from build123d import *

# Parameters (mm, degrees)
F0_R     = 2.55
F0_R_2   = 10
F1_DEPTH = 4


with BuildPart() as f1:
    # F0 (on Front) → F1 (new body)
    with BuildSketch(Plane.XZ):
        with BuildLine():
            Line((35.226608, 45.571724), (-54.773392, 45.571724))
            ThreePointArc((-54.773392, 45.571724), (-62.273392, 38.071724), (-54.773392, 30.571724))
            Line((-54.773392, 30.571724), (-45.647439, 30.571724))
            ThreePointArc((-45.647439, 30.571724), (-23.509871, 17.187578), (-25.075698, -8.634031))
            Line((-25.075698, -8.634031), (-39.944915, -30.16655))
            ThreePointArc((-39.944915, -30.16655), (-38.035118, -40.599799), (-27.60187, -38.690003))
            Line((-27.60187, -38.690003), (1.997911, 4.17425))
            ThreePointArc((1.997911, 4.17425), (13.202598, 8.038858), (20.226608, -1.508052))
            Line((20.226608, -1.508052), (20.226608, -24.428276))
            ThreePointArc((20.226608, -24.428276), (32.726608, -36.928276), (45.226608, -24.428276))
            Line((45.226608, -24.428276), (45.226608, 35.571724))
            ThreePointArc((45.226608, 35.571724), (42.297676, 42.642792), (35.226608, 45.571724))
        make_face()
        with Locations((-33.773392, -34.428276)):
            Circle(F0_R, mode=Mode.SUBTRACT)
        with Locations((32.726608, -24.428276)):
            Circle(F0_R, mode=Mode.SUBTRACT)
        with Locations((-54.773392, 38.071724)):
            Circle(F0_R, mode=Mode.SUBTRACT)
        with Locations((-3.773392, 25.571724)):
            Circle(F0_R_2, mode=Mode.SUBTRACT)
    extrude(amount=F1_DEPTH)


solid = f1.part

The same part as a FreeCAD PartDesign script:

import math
import FreeCAD as App
import Part
import Sketcher
Q = App.Units.Quantity

doc = App.newDocument("Part")
body = doc.addObject("PartDesign::Body", "Body")

sketch1 = doc.addObject("Sketcher::SketchObject", "Sketch")
body.addObject(sketch1)
sketch1.AttachmentSupport = (doc.XZ_Plane, [""])
sketch1.MapMode = "FlatFace"
sketch1.addGeometry(Part.LineSegment(App.Vector(35.226608, 45.571724, 0), App.Vector(-54.773392, 45.571724, 0)), False)
sketch1.addGeometry(Part.ArcOfCircle(Part.Circle(App.Vector(-54.773392, 38.071724, 0), App.Vector(0, 0, 1), 7.5), math.radians(90), math.radians(270)), False)
sketch1.addGeometry(Part.LineSegment(App.Vector(-54.773392, 30.571724, 0), App.Vector(-45.647439, 30.571724, 0)), False)
sketch1.addGeometry(Part.ArcOfCircle(Part.Circle(App.Vector(-45.64744, 5.571724, 0), App.Vector(0, 0, 1), 25), math.radians(-34.626903), math.radians(89.999998)), False)
sketch1.addGeometry(Part.LineSegment(App.Vector(-25.075698, -8.634031, 0), App.Vector(-39.944915, -30.16655, 0)), False)
sketch1.addGeometry(Part.ArcOfCircle(Part.Circle(App.Vector(-33.773392, -34.428276, 0), App.Vector(0, 0, 1), 7.5), math.radians(145.373101), math.radians(325.373092)), False)
sketch1.addGeometry(Part.LineSegment(App.Vector(-27.60187, -38.690003, 0), App.Vector(1.997911, 4.17425, 0)), False)
sketch1.addGeometry(Part.ArcOfCircle(Part.Circle(App.Vector(10.226608, -1.508052, 0), App.Vector(0, 0, 1), 10), math.radians(-0.000001), math.radians(145.373098)), False)
sketch1.addGeometry(Part.LineSegment(App.Vector(20.226608, -1.508052, 0), App.Vector(20.226608, -24.428276, 0)), False)
sketch1.addGeometry(Part.ArcOfCircle(Part.Circle(App.Vector(32.726608, -24.428276, 0), App.Vector(0, 0, 1), 12.5), math.radians(180), math.radians(360)), False)
sketch1.addGeometry(Part.LineSegment(App.Vector(45.226608, -24.428276, 0), App.Vector(45.226608, 35.571724, 0)), False)
sketch1.addGeometry(Part.ArcOfCircle(Part.Circle(App.Vector(35.226609, 35.571725, 0), App.Vector(0, 0, 1), 9.999999), math.radians(-0.000004), math.radians(90.000004)), False)
sketch1.addGeometry(Part.Circle(App.Vector(-33.773392, -34.428276, 0), App.Vector(0, 0, 1), 2.55), False)
sketch1.addGeometry(Part.Circle(App.Vector(32.726608, -24.428276, 0), App.Vector(0, 0, 1), 2.55), False)
sketch1.addGeometry(Part.Circle(App.Vector(-54.773392, 38.071724, 0), App.Vector(0, 0, 1), 2.55), False)
sketch1.addGeometry(Part.Circle(App.Vector(-3.773392, 25.571724, 0), App.Vector(0, 0, 1), 10), False)
sketch1.addConstraint(Sketcher.Constraint("Tangent", 0, 2, 1, 1))
sketch1.addConstraint(Sketcher.Constraint("Tangent", 1, 2, 2, 1))
sketch1.addConstraint(Sketcher.Constraint("Tangent", 2, 2, 3, 2))
sketch1.addConstraint(Sketcher.Constraint("Tangent", 3, 1, 4, 1))
sketch1.addConstraint(Sketcher.Constraint("Tangent", 4, 2, 5, 1))
sketch1.addConstraint(Sketcher.Constraint("Tangent", 5, 2, 6, 1))
sketch1.addConstraint(Sketcher.Constraint("Tangent", 6, 2, 7, 2))
sketch1.addConstraint(Sketcher.Constraint("Tangent", 7, 1, 8, 1))
sketch1.addConstraint(Sketcher.Constraint("Tangent", 8, 2, 9, 1))
sketch1.addConstraint(Sketcher.Constraint("Tangent", 9, 2, 10, 1))
sketch1.addConstraint(Sketcher.Constraint("Tangent", 10, 2, 11, 1))
sketch1.addConstraint(Sketcher.Constraint("Tangent", 11, 2, 0, 1))
sketch1.addConstraint(Sketcher.Constraint("Horizontal", 0))
sketch1.addConstraint(Sketcher.Constraint("Horizontal", 2))
sketch1.addConstraint(Sketcher.Constraint("Vertical", 8))
sketch1.addConstraint(Sketcher.Constraint("Vertical", 10))
sketch1.addConstraint(Sketcher.Constraint("Coincident", 12, 3, 5, 3))
sketch1.addConstraint(Sketcher.Constraint("Coincident", 13, 3, 9, 3))
sketch1.addConstraint(Sketcher.Constraint("Coincident", 14, 3, 1, 3))
sketch1.addConstraint(Sketcher.Constraint("Equal", 1, 5))
sketch1.addConstraint(Sketcher.Constraint("Equal", 7, 11))
sketch1.addConstraint(Sketcher.Constraint("Equal", 12, 13))
sketch1.addConstraint(Sketcher.Constraint("Equal", 13, 14))
sketch1.addConstraint(Sketcher.Constraint("Equal", 11, 15))
sketch1.addConstraint(Sketcher.Constraint("Parallel", 4, 6))
sketch1.addConstraint(Sketcher.Constraint("Diameter", 15, Q("20 mm")))
sketch1.addConstraint(Sketcher.Constraint("Radius", 3, Q("25 mm")))
sketch1.addConstraint(Sketcher.Constraint("Diameter", 12, Q("5.1 mm")))
sketch1.addConstraint(Sketcher.Constraint("Radius", 1, Q("7.5 mm")))
sketch1.addConstraint(Sketcher.Constraint("Radius", 9, Q("12.5 mm")))
sketch1.addConstraint(Sketcher.Constraint("DistanceX", 0, 2, 0, 1, Q("90 mm")))
sketch1.addConstraint(Sketcher.Constraint("DistanceY", 10, 1, 10, 2, Q("60 mm")))
sketch1.addConstraint(Sketcher.Constraint("DistanceY", 5, 3, 3, 3, Q("40 mm")))
sketch1.addConstraint(Sketcher.Constraint("DistanceX", 1, 3, 5, 3, Q("21 mm")))
sketch1.addConstraint(Sketcher.Constraint("DistanceX", 15, 3, 7, 3, Q("14 mm")))
sketch1.addConstraint(Sketcher.Constraint("DistanceY", 15, 3, 11, 3, Q("10.000001 mm")))
sketch1.addConstraint(Sketcher.Constraint("DistanceX", 3, 1, -1, 1, Q("25.075698 mm")))
sketch1.addConstraint(Sketcher.Constraint("DistanceY", 4, 2, 7, 3, Q("28.658498 mm")))
sketch1.addConstraint(Sketcher.Constraint("DistanceY", 7, 3, -1, 1, Q("1.508052 mm")))
pad1 = doc.addObject("PartDesign::Pad", "Pad")
body.addObject(pad1)
pad1.Profile = sketch1
pad1.Length = 4

doc.recompute()
